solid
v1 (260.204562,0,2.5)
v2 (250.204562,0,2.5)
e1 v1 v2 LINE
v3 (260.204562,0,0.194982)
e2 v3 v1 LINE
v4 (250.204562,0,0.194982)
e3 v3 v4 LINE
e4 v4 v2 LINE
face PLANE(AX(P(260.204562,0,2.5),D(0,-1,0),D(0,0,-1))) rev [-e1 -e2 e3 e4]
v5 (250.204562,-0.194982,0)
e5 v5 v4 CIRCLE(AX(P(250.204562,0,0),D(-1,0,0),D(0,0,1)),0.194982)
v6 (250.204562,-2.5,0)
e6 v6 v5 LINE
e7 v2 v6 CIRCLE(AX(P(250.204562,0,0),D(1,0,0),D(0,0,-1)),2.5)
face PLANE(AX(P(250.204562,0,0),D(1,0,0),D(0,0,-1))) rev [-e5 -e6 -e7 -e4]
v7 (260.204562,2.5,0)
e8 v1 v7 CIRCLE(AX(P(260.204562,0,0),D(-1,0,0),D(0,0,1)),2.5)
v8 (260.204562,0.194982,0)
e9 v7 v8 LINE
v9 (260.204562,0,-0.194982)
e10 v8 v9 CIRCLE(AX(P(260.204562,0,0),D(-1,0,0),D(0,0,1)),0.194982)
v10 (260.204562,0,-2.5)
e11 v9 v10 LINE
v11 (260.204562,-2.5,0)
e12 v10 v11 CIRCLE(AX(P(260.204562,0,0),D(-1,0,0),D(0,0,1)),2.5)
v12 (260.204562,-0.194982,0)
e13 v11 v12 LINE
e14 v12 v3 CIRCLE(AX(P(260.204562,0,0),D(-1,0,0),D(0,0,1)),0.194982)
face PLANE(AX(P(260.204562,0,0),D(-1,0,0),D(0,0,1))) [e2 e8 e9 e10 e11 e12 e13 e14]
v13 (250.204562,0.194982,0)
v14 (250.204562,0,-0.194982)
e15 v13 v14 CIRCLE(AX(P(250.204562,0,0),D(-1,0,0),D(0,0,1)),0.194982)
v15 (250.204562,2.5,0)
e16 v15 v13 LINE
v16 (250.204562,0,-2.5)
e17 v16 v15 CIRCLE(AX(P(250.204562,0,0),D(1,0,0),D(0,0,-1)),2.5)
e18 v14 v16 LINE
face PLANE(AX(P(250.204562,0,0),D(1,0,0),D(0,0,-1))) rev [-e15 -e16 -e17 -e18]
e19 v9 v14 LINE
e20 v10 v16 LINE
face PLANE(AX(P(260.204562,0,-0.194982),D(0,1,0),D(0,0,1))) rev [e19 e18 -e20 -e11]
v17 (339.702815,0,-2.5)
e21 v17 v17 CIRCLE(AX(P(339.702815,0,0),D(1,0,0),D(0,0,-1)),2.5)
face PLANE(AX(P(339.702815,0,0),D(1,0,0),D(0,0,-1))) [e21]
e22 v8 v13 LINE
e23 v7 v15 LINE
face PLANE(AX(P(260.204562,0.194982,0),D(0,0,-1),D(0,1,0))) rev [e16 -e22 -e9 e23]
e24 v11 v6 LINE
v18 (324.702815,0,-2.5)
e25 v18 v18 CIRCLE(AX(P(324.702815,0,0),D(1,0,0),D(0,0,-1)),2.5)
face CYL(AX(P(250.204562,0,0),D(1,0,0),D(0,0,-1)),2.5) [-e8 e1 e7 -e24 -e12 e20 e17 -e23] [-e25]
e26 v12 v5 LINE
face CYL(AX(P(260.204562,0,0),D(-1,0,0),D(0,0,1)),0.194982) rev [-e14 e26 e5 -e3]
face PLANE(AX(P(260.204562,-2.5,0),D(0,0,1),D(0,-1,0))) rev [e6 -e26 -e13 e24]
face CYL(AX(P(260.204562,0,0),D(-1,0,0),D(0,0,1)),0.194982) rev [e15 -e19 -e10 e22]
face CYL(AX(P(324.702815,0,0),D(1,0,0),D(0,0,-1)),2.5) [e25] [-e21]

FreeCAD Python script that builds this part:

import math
import FreeCAD as App
import Part
import Sketcher
from FreeCAD import Vector

doc = App.newDocument("Part")
body = doc.addObject("PartDesign::Body", "Body")

# Sketch on YZ plane
sketch1 = doc.addObject("Sketcher::SketchObject", "Sketch")
body.addObject(sketch1)
sketch1.AttachmentSupport = (doc.YZ_Plane, [""])
sketch1.MapMode = "FlatFace"
sketch1.AttachmentOffset = App.Placement(Vector(0, 0, 339.702815), App.Rotation())
sketch1.addGeometry(Part.Circle(Vector(0, 0, 0), Vector(0, 0, 1), 2.5), False)
sketch1.addConstraint(Sketcher.Constraint("Coincident", 0, 3, -1, 1))
sketch1.addConstraint(Sketcher.Constraint("Diameter", 0, 5.0))

# Sketch on XY plane
sketch2 = doc.addObject("Sketcher::SketchObject", "Sketch001")
body.addObject(sketch2)
sketch2.AttachmentSupport = (doc.XY_Plane, [""])
sketch2.MapMode = "FlatFace"
sketch2.addGeometry(Part.LineSegment(Vector(340, 0, 0), Vector(250, 0, 0)), False)
sketch2.addConstraint(Sketcher.Constraint("Horizontal", 0))
sketch2.addConstraint(Sketcher.Constraint("PointOnObject", 0, 1, -1))
sketch2.addConstraint(Sketcher.Constraint("DistanceX", 0, 2, 0, 1, 89.498253))
sketch2.addConstraint(Sketcher.Constraint("DistanceX", -1, 1, 0, 2, 250.204562))
doc.recompute()

additivepipe = doc.addObject("PartDesign::AdditivePipe", "AdditivePipe")
body.addObject(additivepipe)
additivepipe.Profile = sketch1
additivepipe.Spine = (sketch2, ["Edge1"])

# Sketch on YZ plane
sketch3 = doc.addObject("Sketcher::SketchObject", "Sketch002")
body.addObject(sketch3)
sketch3.AttachmentSupport = (doc.YZ_Plane, [""])
sketch3.MapMode = "FlatFace"
sketch3.AttachmentOffset = App.Placement(Vector(0, 0, 250.204562), App.Rotation())
sketch3.addGeometry(Part.LineSegment(Vector(0, 0.19, 0), Vector(0, 2.5, 0)), False)
sketch3.addGeometry(Part.ArcOfCircle(Part.Circle(Vector(0, 0, 0), Vector(0, 0, 1), 2.5), math.radians(0), math.radians(90)), False)
sketch3.addGeometry(Part.LineSegment(Vector(2.5, 0, 0), Vector(0.19, 0, 0)), False)
sketch3.addGeometry(Part.ArcOfCircle(Part.Circle(Vector(0, 0, 0), Vector(0, 0, 1), 0.19), math.radians(-90), math.radians(0)), False)
sketch3.addGeometry(Part.LineSegment(Vector(0, -0.19, 0), Vector(0, -2.5, 0)), False)
sketch3.addGeometry(Part.ArcOfCircle(Part.Circle(Vector(0, 0, 0), Vector(0, 0, 1), 2.5), math.radians(180), math.radians(270)), False)
sketch3.addGeometry(Part.LineSegment(Vector(-2.5, 0, 0), Vector(-0.19, 0, 0)), False)
sketch3.addGeometry(Part.ArcOfCircle(Part.Circle(Vector(0, 0, 0), Vector(0, 0, 1), 0.19), math.radians(90), math.radians(180)), False)
sketch3.addConstraint(Sketcher.Constraint("Coincident", 0, 2, 1, 2))
sketch3.addConstraint(Sketcher.Constraint("Coincident", 1, 1, 2, 1))
sketch3.addConstraint(Sketcher.Constraint("Coincident", 2, 2, 3, 2))
sketch3.addConstraint(Sketcher.Constraint("Coincident", 3, 1, 4, 1))
sketch3.addConstraint(Sketcher.Constraint("Coincident", 4, 2, 5, 2))
sketch3.addConstraint(Sketcher.Constraint("Coincident", 5, 1, 6, 1))
sketch3.addConstraint(Sketcher.Constraint("Coincident", 6, 2, 7, 2))
sketch3.addConstraint(Sketcher.Constraint("Coincident", 7, 1, 0, 1))
sketch3.addConstraint(Sketcher.Constraint("Vertical", 0))
sketch3.addConstraint(Sketcher.Constraint("Horizontal", 2))
sketch3.addConstraint(Sketcher.Constraint("Vertical", 4))
sketch3.addConstraint(Sketcher.Constraint("Horizontal", 6))
sketch3.addConstraint(Sketcher.Constraint("Coincident", 1, 3, -1, 1))
sketch3.addConstraint(Sketcher.Constraint("Coincident", 3, 3, -1, 1))
sketch3.addConstraint(Sketcher.Constraint("Coincident", 5, 3, -1, 1))
sketch3.addConstraint(Sketcher.Constraint("Coincident", 7, 3, -1, 1))
sketch3.addConstraint(Sketcher.Constraint("Equal", 1, 5))
sketch3.addConstraint(Sketcher.Constraint("Equal", 3, 7))
sketch3.addConstraint(Sketcher.Constraint("PointOnObject", 0, 2, -2))
sketch3.addConstraint(Sketcher.Constraint("PointOnObject", 1, 1, -1))
sketch3.addConstraint(Sketcher.Constraint("PointOnObject", 3, 1, -2))
sketch3.addConstraint(Sketcher.Constraint("PointOnObject", 5, 1, -1))
sketch3.addConstraint(Sketcher.Constraint("Radius", 1, 2.5))
sketch3.addConstraint(Sketcher.Constraint("Radius", 3, 0.194982))
pocket1 = doc.addObject("PartDesign::Pocket", "Pocket")
body.addObject(pocket1)
pocket1.Profile = sketch3
pocket1.Length = 10
pocket1.Reversed = True

doc.recompute()
